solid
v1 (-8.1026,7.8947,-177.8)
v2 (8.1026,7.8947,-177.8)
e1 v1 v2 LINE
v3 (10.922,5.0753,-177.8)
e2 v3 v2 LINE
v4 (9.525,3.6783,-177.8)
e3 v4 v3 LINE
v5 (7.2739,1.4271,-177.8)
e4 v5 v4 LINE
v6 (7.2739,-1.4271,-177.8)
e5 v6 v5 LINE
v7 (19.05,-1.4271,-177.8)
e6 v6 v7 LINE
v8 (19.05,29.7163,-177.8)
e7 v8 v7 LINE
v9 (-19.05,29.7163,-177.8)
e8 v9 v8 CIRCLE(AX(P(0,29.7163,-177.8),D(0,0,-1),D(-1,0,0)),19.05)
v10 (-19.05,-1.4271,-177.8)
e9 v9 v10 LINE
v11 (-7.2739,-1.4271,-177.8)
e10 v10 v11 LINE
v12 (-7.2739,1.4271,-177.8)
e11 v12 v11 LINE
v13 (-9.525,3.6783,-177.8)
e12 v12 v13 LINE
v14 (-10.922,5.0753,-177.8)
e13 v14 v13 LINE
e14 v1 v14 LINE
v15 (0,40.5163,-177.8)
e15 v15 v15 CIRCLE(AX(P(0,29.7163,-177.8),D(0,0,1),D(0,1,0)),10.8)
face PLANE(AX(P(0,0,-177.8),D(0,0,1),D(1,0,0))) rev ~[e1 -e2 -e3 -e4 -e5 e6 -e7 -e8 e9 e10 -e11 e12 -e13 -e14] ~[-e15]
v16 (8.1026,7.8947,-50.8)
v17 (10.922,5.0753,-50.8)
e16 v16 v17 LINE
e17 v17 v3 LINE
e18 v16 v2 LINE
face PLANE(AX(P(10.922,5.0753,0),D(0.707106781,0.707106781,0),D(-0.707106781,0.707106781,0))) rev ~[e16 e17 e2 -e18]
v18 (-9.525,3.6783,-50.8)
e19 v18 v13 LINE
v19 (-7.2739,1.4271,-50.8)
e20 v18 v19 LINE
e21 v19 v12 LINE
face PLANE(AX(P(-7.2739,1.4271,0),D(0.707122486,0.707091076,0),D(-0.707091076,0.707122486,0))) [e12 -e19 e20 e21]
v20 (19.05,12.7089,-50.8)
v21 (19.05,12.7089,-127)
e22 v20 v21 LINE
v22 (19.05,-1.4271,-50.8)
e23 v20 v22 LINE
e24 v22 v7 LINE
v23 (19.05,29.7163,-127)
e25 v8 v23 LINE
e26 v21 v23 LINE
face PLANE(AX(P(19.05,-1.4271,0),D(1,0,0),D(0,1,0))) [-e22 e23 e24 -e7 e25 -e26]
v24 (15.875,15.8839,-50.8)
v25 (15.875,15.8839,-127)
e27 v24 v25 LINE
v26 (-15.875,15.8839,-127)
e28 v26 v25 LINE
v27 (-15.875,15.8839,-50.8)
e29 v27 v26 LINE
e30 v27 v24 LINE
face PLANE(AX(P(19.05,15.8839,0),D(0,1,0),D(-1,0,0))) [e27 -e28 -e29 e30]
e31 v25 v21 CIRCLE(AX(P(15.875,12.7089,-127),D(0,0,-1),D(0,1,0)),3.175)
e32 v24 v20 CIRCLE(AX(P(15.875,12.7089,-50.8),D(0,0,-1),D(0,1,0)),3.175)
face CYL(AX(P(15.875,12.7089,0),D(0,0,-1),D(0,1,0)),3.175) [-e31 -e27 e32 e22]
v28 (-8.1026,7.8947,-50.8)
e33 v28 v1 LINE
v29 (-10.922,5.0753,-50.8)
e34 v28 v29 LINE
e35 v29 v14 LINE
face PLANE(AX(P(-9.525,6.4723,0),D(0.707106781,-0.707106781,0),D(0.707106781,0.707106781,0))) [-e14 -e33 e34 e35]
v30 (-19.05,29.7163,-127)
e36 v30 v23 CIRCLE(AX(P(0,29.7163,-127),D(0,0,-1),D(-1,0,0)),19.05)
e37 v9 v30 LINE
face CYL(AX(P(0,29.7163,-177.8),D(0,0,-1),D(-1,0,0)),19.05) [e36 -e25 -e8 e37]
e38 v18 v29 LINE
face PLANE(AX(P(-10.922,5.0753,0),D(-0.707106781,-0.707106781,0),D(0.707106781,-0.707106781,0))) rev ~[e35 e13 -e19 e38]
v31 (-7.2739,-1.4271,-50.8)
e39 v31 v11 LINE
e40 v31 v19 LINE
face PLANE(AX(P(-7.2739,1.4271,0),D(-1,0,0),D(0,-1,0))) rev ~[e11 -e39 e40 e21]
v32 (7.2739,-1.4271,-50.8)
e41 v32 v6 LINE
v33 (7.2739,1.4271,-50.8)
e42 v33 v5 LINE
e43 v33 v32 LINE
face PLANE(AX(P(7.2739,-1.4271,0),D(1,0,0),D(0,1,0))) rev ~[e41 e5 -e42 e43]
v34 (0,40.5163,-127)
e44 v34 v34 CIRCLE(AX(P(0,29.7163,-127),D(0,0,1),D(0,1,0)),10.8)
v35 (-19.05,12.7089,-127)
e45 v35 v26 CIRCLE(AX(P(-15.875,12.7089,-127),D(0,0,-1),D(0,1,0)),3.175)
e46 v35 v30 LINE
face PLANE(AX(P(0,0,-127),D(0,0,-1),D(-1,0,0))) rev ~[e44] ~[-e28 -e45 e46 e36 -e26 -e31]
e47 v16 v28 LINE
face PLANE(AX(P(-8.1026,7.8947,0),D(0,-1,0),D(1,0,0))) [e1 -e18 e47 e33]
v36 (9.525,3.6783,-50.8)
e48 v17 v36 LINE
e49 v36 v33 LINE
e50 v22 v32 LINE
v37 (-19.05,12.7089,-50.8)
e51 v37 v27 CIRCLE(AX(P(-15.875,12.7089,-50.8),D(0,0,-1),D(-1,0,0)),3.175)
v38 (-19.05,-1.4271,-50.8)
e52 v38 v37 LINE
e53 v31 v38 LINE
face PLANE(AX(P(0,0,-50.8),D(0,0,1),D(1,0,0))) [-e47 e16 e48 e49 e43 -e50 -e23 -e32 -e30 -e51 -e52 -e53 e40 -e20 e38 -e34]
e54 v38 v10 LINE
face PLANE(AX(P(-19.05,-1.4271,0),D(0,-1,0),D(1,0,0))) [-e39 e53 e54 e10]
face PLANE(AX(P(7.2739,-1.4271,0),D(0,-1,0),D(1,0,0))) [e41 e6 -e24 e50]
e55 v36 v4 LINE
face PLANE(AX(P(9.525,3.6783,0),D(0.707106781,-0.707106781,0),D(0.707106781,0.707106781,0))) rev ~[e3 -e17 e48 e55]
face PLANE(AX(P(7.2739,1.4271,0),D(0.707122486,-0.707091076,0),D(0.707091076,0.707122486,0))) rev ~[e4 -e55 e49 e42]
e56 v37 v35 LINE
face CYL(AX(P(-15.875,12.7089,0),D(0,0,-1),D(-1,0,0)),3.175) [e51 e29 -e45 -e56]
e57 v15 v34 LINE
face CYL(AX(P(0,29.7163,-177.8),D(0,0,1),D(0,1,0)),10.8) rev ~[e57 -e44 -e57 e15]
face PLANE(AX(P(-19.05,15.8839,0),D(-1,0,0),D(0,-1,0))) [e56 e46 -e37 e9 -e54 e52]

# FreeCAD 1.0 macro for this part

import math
import FreeCAD as App
import Part
import Sketcher
from FreeCAD import Vector
Q = App.Units.Quantity


def edges_at(feature, points):
    """Names of the edges that pass closest to the given points."""
    edges = feature.Shape.Edges
    near = lambda p: min(range(len(edges)), key=lambda i: edges[i].distToShape(Part.Vertex(*p))[0])
    return sorted({f"Edge{near(p) + 1}" for p in points})


def add_polygon(sketch, points):
    """Adds a closed chain of lines whose ends are joined by coincident constraints."""
    first, n = sketch.GeometryCount, len(points)
    for a, b in zip(points, points[1:] + points[:1]):
        sketch.addGeometry(Part.LineSegment(App.Vector(*a, 0), App.Vector(*b, 0)), False)
    for i in range(n):
        sketch.addConstraint(Sketcher.Constraint("Coincident", first + i, 2, first + (i + 1) % n, 1))

doc = App.newDocument("Part")
params = doc.addObject("Spreadsheet::Sheet", "Params")
for row, (alias, value) in enumerate([
    ("sketch1_width", "1.5 in"),
    ("sketch1_width2", "0.638 in"),
    ("pad1_length", "7 in"),
    ("sketch2_radius", "0.75 in"),
    ("pad2_length", "2 in"),
    ("hole_diameter", "0.8503937 in"),
    ("fillet_radius", "0.125 in"),
    ("pocket1_length", "2 in"),
], start=1):
    params.set(f"A{row}", alias)
    params.set(f"B{row}", "=" + value)
    params.setAlias(f"B{row}", alias)

body = doc.addObject("PartDesign::Body", "Body")

# Sketch on XY plane
sketch1 = doc.addObject("Sketcher::SketchObject", "Sketch")
body.addObject(sketch1)
sketch1.AttachmentSupport = (doc.XY_Plane, [""])
sketch1.MapMode = "FlatFace"
add_polygon(sketch1, [(-19.1, -1.4), (-7.3, -1.4), (-7.3, 1.4), (-9.5, 3.7), (-10.9, 5.1), (-8.1, 7.9), (8.1, 7.9), (10.9, 5.1), (9.5, 3.7), (7.3, 1.4), (7.3, -1.4), (19.1, -1.4), (19.1, 15.9), (-19.1, 15.9)])  # lines 0-13
sketch1.addConstraint([
    Sketcher.Constraint("Horizontal", 0),
    Sketcher.Constraint("Vertical", 1),
    Sketcher.Constraint("Horizontal", 5),
    Sketcher.Constraint("Vertical", 9),
    Sketcher.Constraint("Horizontal", 10),
    Sketcher.Constraint("Vertical", 11),
    Sketcher.Constraint("Horizontal", 12),
    Sketcher.Constraint("Vertical", 13),
    Sketcher.Constraint("Symmetric", 0, 2, 8, 2, -1, 1),
    Sketcher.Constraint("Symmetric", 3, 2, 6, 2, -2),
    Sketcher.Constraint("Symmetric", 2, 2, 7, 2, -2),
    Sketcher.Constraint("Symmetric", 10, 2, 13, 2, -2),
    Sketcher.Constraint("Parallel", 2, 3),
    Sketcher.Constraint("Perpendicular", 3, 4),
    Sketcher.Constraint("Perpendicular", 4, 6),
    Sketcher.Constraint("Perpendicular", 6, 7),
    Sketcher.Constraint("Parallel", 7, 8),
    Sketcher.Constraint("DistanceX", 12, 2, 12, 1, Q("1.5 in")),
    Sketcher.Constraint("DistanceY", 2, 2, 4, 2, Q("0.166 in")),
    Sketcher.Constraint("DistanceY", 0, 2, 4, 2, Q("0.367 in")),
    Sketcher.Constraint("DistanceX", 5, 1, 5, 2, Q("0.638 in")),
    Sketcher.Constraint("DistanceX", 3, 2, -1, 1, Q("0.43 in")),
    Sketcher.Constraint("DistanceX", 0, 1, 0, 2, Q("11.776 mm")),
    Sketcher.Constraint("DistanceY", 11, 1, 11, 2, Q("17.311 mm")),
])
sketch1.setExpression("Constraints[31]", "Params.sketch1_width")
sketch1.setExpression("Constraints[34]", "Params.sketch1_width2")
pad1 = doc.addObject("PartDesign::Pad", "Pad")
body.addObject(pad1)
pad1.Profile = sketch1
pad1.setExpression("Length", "Params.pad1_length")
pad1.Reversed = True

# Sketch on XY plane
sketch2 = doc.addObject("Sketcher::SketchObject", "Sketch001")
body.addObject(sketch2)
sketch2.AttachmentSupport = (doc.XY_Plane, [""])
sketch2.MapMode = "FlatFace"
sketch2.AttachmentOffset = App.Placement(Vector(0, 0, -7 * 25.4), App.Rotation())
sketch2.addGeometry([
    Part.LineSegment(Vector(-19, 16, 0), Vector(-19, 30, 0)),
    Part.ArcOfCircle(Part.Circle(Vector(0, 30, 0), Vector(0, 0, 1), 19), math.radians(0), math.radians(180)),
    Part.LineSegment(Vector(19, 30, 0), Vector(19, 16, 0)),
    Part.LineSegment(Vector(19, 16, 0), Vector(-19, 16, 0)),
], False)
sketch2.addConstraint([
    Sketcher.Constraint("Tangent", 0, 2, 1, 2),
    Sketcher.Constraint("Tangent", 1, 1, 2, 1),
    Sketcher.Constraint("Coincident", 2, 2, 3, 1),
    Sketcher.Constraint("Coincident", 3, 2, 0, 1),
    Sketcher.Constraint("Vertical", 0),
    Sketcher.Constraint("Vertical", 2),
    Sketcher.Constraint("Horizontal", 3),
    Sketcher.Constraint("PointOnObject", 1, 3, -2),
    Sketcher.Constraint("Radius", 1, Q("0.75 in")),
    Sketcher.Constraint("DistanceY", 0, 1, 0, 2, Q("13.8324 mm")),
    Sketcher.Constraint("DistanceY", -1, 1, 1, 3, Q("29.7163 mm")),
])
sketch2.setExpression("Constraints[8]", "Params.sketch2_radius")
pad2 = doc.addObject("PartDesign::Pad", "Pad001")
body.addObject(pad2)
pad2.Profile = sketch2
pad2.setExpression("Length", "Params.pad2_length")

# Sketch on XY plane
sketch3 = doc.addObject("Sketcher::SketchObject", "Sketch002")
body.addObject(sketch3)
sketch3.AttachmentSupport = (doc.XY_Plane, [""])
sketch3.MapMode = "FlatFace"
sketch3.AttachmentOffset = App.Placement(Vector(0, 0, -7 * 25.4), App.Rotation())
sketch3.addGeometry(Part.Circle(Vector(0, 30, 0), Vector(0, 0, 1), 11), False)
sketch3.addConstraint([
    Sketcher.Constraint("PointOnObject", 0, 3, -2),
    Sketcher.Constraint("Diameter", 0, Q("0.8504 in")),
    Sketcher.Constraint("DistanceY", -1, 1, 0, 3, Q("29.7163 mm")),
])
doc.recompute()
hole = doc.addObject("PartDesign::Hole", "Hole")
body.addObject(hole)
hole.Profile = sketch3
hole.ThreadType = "None"
hole.setExpression("Diameter", "Params.hole_diameter")
hole.DepthType = "ThroughAll"
hole.Reversed = True
doc.recompute()

fillet = doc.addObject("PartDesign::Fillet", "Fillet")
body.addObject(fillet)
fillet.Base = (hole, edges_at(hole, [(-19.05, 15.884, -63.5), (19.05, 15.884, -63.5)]))
fillet.setExpression("Radius", "Params.fillet_radius")

# Sketch on XY plane
sketch4 = doc.addObject("Sketcher::SketchObject", "Sketch003")
body.addObject(sketch4)
sketch4.AttachmentSupport = (doc.XY_Plane, [""])
sketch4.MapMode = "FlatFace"
add_polygon(sketch4, [(31, 47), (-84, 47), (-84, -7), (31, -7)])  # lines 0-3
sketch4.addConstraint([
    Sketcher.Constraint("Horizontal", 0),
    Sketcher.Constraint("Vertical", 1),
    Sketcher.Constraint("Horizontal", 2),
    Sketcher.Constraint("Vertical", 3),
    Sketcher.Constraint("DistanceY", 1, 2, 1, 1, Q("2.1169 in")),
    Sketcher.Constraint("DistanceX", 0, 2, 0, 1, Q("114.7002 mm")),
    Sketcher.Constraint("DistanceX", 0, 2, -1, 1, Q("3.3094 in")),
    Sketcher.Constraint("DistanceY", 1, 2, -1, 1, Q("0.2704 in")),
])
pocket1 = doc.addObject("PartDesign::Pocket", "Pocket")
body.addObject(pocket1)
pocket1.Profile = sketch4
pocket1.setExpression("Length", "Params.pocket1_length")

doc.recompute()
